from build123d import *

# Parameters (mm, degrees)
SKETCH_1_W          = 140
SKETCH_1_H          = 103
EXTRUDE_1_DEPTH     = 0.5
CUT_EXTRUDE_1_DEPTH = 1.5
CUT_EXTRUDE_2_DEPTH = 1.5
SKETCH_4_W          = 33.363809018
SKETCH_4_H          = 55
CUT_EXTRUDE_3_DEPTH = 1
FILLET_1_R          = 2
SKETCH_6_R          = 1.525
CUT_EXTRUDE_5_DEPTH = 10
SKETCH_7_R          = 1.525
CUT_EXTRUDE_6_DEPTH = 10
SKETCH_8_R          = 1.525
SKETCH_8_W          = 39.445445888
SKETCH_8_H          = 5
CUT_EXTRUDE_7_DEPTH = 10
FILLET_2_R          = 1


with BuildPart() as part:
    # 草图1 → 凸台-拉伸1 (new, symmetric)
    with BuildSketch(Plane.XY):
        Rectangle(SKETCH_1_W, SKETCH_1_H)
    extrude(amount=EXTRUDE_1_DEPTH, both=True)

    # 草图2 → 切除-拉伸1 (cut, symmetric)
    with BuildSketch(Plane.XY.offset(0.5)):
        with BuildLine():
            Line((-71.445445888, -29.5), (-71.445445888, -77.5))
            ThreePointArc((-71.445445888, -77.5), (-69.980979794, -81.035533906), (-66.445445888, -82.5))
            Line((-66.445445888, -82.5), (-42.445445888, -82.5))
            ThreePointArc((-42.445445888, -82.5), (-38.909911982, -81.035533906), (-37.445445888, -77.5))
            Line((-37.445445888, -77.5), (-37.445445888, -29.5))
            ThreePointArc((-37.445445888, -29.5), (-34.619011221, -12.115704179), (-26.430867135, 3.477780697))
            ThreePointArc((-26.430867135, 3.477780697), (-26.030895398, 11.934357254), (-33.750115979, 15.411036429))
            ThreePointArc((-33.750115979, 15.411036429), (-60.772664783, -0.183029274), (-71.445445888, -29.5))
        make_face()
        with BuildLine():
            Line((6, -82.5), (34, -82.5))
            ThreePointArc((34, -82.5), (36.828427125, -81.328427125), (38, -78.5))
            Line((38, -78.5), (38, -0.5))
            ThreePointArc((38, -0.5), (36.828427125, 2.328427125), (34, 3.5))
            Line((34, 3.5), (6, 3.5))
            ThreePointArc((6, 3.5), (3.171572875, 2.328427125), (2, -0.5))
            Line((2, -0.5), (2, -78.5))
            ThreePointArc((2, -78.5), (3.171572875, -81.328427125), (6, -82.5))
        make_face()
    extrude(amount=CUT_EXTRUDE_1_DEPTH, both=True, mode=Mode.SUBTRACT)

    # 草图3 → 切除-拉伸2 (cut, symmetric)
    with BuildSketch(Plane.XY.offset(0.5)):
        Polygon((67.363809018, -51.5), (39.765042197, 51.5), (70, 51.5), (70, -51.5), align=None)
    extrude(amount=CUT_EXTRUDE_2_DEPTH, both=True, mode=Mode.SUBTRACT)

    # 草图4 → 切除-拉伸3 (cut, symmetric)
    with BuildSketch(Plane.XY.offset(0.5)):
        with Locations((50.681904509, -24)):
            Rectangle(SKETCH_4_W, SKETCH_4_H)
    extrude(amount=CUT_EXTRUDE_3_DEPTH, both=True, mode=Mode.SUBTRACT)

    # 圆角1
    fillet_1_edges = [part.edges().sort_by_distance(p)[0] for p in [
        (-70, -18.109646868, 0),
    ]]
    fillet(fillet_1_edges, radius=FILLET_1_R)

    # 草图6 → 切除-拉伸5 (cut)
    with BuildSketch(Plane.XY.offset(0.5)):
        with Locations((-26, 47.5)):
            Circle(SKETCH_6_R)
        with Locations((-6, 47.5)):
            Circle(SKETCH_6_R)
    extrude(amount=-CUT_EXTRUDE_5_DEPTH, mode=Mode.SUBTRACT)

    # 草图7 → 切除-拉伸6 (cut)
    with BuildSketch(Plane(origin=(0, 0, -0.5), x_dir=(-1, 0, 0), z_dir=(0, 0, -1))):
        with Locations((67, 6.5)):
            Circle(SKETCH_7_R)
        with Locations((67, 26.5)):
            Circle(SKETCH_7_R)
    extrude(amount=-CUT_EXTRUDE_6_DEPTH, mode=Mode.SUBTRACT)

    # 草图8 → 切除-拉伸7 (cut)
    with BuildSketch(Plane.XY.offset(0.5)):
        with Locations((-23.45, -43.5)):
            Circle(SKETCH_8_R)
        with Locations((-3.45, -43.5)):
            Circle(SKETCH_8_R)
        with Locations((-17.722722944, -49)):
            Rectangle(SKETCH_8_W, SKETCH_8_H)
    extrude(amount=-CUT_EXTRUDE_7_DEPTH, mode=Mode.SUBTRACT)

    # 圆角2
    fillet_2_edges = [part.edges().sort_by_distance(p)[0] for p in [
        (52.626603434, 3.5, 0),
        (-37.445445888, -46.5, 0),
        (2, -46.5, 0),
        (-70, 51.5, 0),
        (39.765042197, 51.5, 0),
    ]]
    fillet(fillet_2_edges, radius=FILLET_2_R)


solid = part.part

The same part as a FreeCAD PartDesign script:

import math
import FreeCAD as App
import Part
import Sketcher

V = App.Vector
Q = App.Units.Quantity


def edges_at(feature, points):
    """Names of the edges that pass closest to the given points."""
    edges = feature.Shape.Edges
    near = lambda p: min(range(len(edges)), key=lambda i: edges[i].distToShape(Part.Vertex(*p))[0])
    return sorted({f"Edge{near(p) + 1}" for p in points})


def add_polygon(sketch, points):
    """Adds a closed chain of lines whose ends are joined by coincident constraints."""
    first, n = sketch.GeometryCount, len(points)
    for a, b in zip(points, points[1:] + points[:1]):
        sketch.addGeometry(Part.LineSegment(App.Vector(*a, 0), App.Vector(*b, 0)), False)
    for i in range(n):
        sketch.addConstraint(Sketcher.Constraint("Coincident", first + i, 2, first + (i + 1) % n, 1))

doc = App.newDocument("Part")
body = doc.addObject("PartDesign::Body", "Body")

# Sketch on XY plane
sketch1 = doc.addObject("Sketcher::SketchObject", "Sketch")
body.addObject(sketch1)
sketch1.AttachmentSupport = (doc.XY_Plane, [""])
sketch1.MapMode = "FlatFace"
add_polygon(sketch1, [(-70, 51.5), (-70, -51.5), (70, -51.5), (70, 51.5)])  # lines 0-3
sketch1.addConstraint([
    Sketcher.Constraint("Vertical", 0),
    Sketcher.Constraint("Horizontal", 1),
    Sketcher.Constraint("Vertical", 2),
    Sketcher.Constraint("Horizontal", 3),
    Sketcher.Constraint("Symmetric", 0, 2, 2, 2, -1, 1),
    Sketcher.Constraint("DistanceX", 1, 1, 1, 2, Q("140 mm")),
    Sketcher.Constraint("DistanceY", 0, 2, 0, 1, Q("103 mm")),
])
pad1 = doc.addObject("PartDesign::Pad", "Pad")
body.addObject(pad1)
pad1.Profile = sketch1
pad1.Length = 1
pad1.Midplane = True

# Sketch on XY plane
sketch2 = doc.addObject("Sketcher::SketchObject", "Sketch001")
body.addObject(sketch2)
sketch2.AttachmentSupport = (doc.XY_Plane, [""])
sketch2.MapMode = "FlatFace"
sketch2.AttachmentOffset = App.Placement(V(0, 0, 0.5), App.Rotation())
sketch2.addGeometry([
    Part.LineSegment(V(-71.445446, -29.5, 0), V(-71.445446, -77.5, 0)),  # 0
    Part.ArcOfCircle(Part.Circle(V(-66.445446, -77.5, 0), V(0, 0, 1), 5), math.radians(180), math.radians(270)),  # 1
    Part.LineSegment(V(-66.445446, -82.5, 0), V(-42.445446, -82.5, 0)),  # 2
    Part.ArcOfCircle(Part.Circle(V(-42.445446, -77.5, 0), V(0, 0, 1), 5), math.radians(-90), math.radians(0)),  # 3
    Part.LineSegment(V(-37.445446, -77.5, 0), V(-37.445446, -29.5, 0)),  # 4
    Part.ArcOfCircle(Part.Circle(V(17.429779, -29.5, 0), V(0, 0, 1), 54.875225), math.radians(143.061361), math.radians(180)),  # 5
    Part.ArcOfCircle(Part.Circle(V(-32.445446, 8, 0), V(0, 0, 1), 7.525), math.radians(-36.938639), math.radians(99.984286)),  # 6
    Part.ArcOfCircle(Part.Circle(V(-25.843788, -29.5, 0), V(0, 0, 1), 45.601658), math.radians(99.984286), math.radians(180)),  # 7
    Part.LineSegment(V(6, -82.5, 0), V(34, -82.5, 0)),  # 8
    Part.ArcOfCircle(Part.Circle(V(34, -78.5, 0), V(0, 0, 1), 4), math.radians(-90), math.radians(0)),  # 9
    Part.LineSegment(V(38, -78.5, 0), V(38, -0.5, 0)),  # 10
    Part.ArcOfCircle(Part.Circle(V(34, -0.5, 0), V(0, 0, 1), 4), math.radians(0), math.radians(90)),  # 11
    Part.LineSegment(V(34, 3.5, 0), V(6, 3.5, 0)),  # 12
    Part.ArcOfCircle(Part.Circle(V(6, -0.5, 0), V(0, 0, 1), 4), math.radians(90), math.radians(180)),  # 13
    Part.LineSegment(V(2, -0.5, 0), V(2, -78.5, 0)),  # 14
    Part.ArcOfCircle(Part.Circle(V(6, -78.5, 0), V(0, 0, 1), 4), math.radians(180), math.radians(270)),  # 15
], False)
sketch2.addConstraint([
    Sketcher.Constraint("Tangent", 0, 2, 1, 1),
    Sketcher.Constraint("Tangent", 1, 2, 2, 1),
    Sketcher.Constraint("Tangent", 2, 2, 3, 1),
    Sketcher.Constraint("Tangent", 3, 2, 4, 1),
    Sketcher.Constraint("Tangent", 4, 2, 5, 2),
    Sketcher.Constraint("Tangent", 5, 1, 6, 1),
    Sketcher.Constraint("Tangent", 6, 2, 7, 1),
    Sketcher.Constraint("Tangent", 7, 2, 0, 1),
    Sketcher.Constraint("Tangent", 8, 2, 9, 1),
    Sketcher.Constraint("Tangent", 9, 2, 10, 1),
    Sketcher.Constraint("Tangent", 10, 2, 11, 1),
    Sketcher.Constraint("Tangent", 11, 2, 12, 1),
    Sketcher.Constraint("Tangent", 12, 2, 13, 1),
    Sketcher.Constraint("Tangent", 13, 2, 14, 1),
    Sketcher.Constraint("Tangent", 14, 2, 15, 1),
    Sketcher.Constraint("Tangent", 15, 2, 8, 1),
    Sketcher.Constraint("Vertical", 0),
    Sketcher.Constraint("Horizontal", 2),
    Sketcher.Constraint("Vertical", 4),
    Sketcher.Constraint("Horizontal", 8),
    Sketcher.Constraint("Vertical", 10),
    Sketcher.Constraint("Horizontal", 12),
    Sketcher.Constraint("Vertical", 14),
    Sketcher.Constraint("Equal", 1, 3),
    Sketcher.Constraint("Equal", 9, 11),
    Sketcher.Constraint("Equal", 11, 13),
    Sketcher.Constraint("Equal", 13, 15),
    Sketcher.Constraint("Horizontal", 5, 3, 7, 3),
    Sketcher.Constraint("Horizontal", 2, 2, 8, 2),
    Sketcher.Constraint("Radius", 1, Q("5 mm")),
    Sketcher.Constraint("Radius", 9, Q("4 mm")),
    Sketcher.Constraint("DistanceX", 2, 1, 2, 2, Q("24 mm")),
    Sketcher.Constraint("DistanceX", 8, 1, 8, 2, Q("28 mm")),
    Sketcher.Constraint("DistanceY", 0, 2, 0, 1, Q("48 mm")),
    Sketcher.Constraint("DistanceY", 10, 1, 10, 2, Q("78 mm")),
    Sketcher.Constraint("DistanceY", -1, 1, 6, 3, Q("8 mm")),
    Sketcher.Constraint("DistanceX", -1, 1, 9, 3, Q("34 mm")),
    Sketcher.Constraint("Radius", 6, Q("7.525 mm")),
    Sketcher.Constraint("DistanceX", 3, 3, 6, 3, Q("10 mm")),
    Sketcher.Constraint("DistanceY", 1, 3, -1, 1, Q("77.5 mm")),
    Sketcher.Constraint("DistanceX", -1, 1, 5, 3, Q("17.429779 mm")),
])
pocket1 = doc.addObject("PartDesign::Pocket", "Pocket")
body.addObject(pocket1)
pocket1.Profile = sketch2
pocket1.Length = 3
pocket1.Midplane = True

# Sketch on XY plane
sketch3 = doc.addObject("Sketcher::SketchObject", "Sketch002")
body.addObject(sketch3)
sketch3.AttachmentSupport = (doc.XY_Plane, [""])
sketch3.MapMode = "FlatFace"
sketch3.AttachmentOffset = App.Placement(V(0, 0, 0.5), App.Rotation())
add_polygon(sketch3, [(39.765042, 51.5), (67.363809, -51.5), (70, -51.5), (70, 51.5)])  # lines 0-3
sketch3.addConstraint([
    Sketcher.Constraint("Horizontal", 1),
    Sketcher.Constraint("Vertical", 2),
    Sketcher.Constraint("Horizontal", 3),
    Sketcher.Constraint("DistanceY", 2, 1, 2, 2, Q("103 mm")),
    Sketcher.Constraint("Angle", 0, Q("-75 deg")),
    Sketcher.Constraint("DistanceX", -1, 1, 1, 2, Q("70 mm")),
    Sketcher.Constraint("DistanceY", 0, 2, -1, 1, Q("51.5 mm")),
    Sketcher.Constraint("DistanceX", 1, 1, 1, 2, Q("2.636191 mm")),
])
pocket2 = doc.addObject("PartDesign::Pocket", "Pocket001")
body.addObject(pocket2)
pocket2.Profile = sketch3
pocket2.Length = 3
pocket2.Midplane = True

# Sketch on XY plane
sketch4 = doc.addObject("Sketcher::SketchObject", "Sketch003")
body.addObject(sketch4)
sketch4.AttachmentSupport = (doc.XY_Plane, [""])
sketch4.MapMode = "FlatFace"
sketch4.AttachmentOffset = App.Placement(V(0, 0, 0.5), App.Rotation())
add_polygon(sketch4, [(34, 3.5), (34, -51.5), (67.363809, -51.5), (67.363809, 3.5)])  # lines 0-3
sketch4.addConstraint([
    Sketcher.Constraint("Vertical", 0),
    Sketcher.Constraint("Horizontal", 1),
    Sketcher.Constraint("Vertical", 2),
    Sketcher.Constraint("Horizontal", 3),
    Sketcher.Constraint("DistanceY", 0, 2, 0, 1, Q("55 mm")),
    Sketcher.Constraint("DistanceX", -1, 1, 0, 2, Q("34 mm")),
    Sketcher.Constraint("DistanceY", 0, 2, -1, 1, Q("51.5 mm")),
    Sketcher.Constraint("DistanceX", 1, 1, 1, 2, Q("33.363809 mm")),
])
pocket3 = doc.addObject("PartDesign::Pocket", "Pocket002")
body.addObject(pocket3)
pocket3.Profile = sketch4
pocket3.Length = 2
pocket3.Midplane = True
doc.recompute()

fillet = doc.addObject("PartDesign::Fillet", "Fillet")
body.addObject(fillet)
fillet.Base = (pocket3, edges_at(pocket3, [(-70, -18.11, 0)]))
fillet.Radius = 2

# Sketch on XY plane
sketch5 = doc.addObject("Sketcher::SketchObject", "Sketch004")
body.addObject(sketch5)
sketch5.AttachmentSupport = (doc.XY_Plane, [""])
sketch5.MapMode = "FlatFace"
sketch5.AttachmentOffset = App.Placement(V(0, 0, 0.5), App.Rotation())
sketch5.addGeometry([
    Part.Circle(V(-26, 47.5, 0), V(0, 0, 1), 1.525),
    Part.Circle(V(-6, 47.5, 0), V(0, 0, 1), 1.525),
], False)
sketch5.addConstraint([
    Sketcher.Constraint("Equal", 0, 1),
    Sketcher.Constraint("Horizontal", 0, 3, 1, 3),
    Sketcher.Constraint("Diameter", 0, Q("3.05 mm")),
    Sketcher.Constraint("DistanceX", 0, 3, -1, 1, Q("26 mm")),
    Sketcher.Constraint("DistanceX", 1, 3, -1, 1, Q("6 mm")),
    Sketcher.Constraint("DistanceY", -1, 1, 0, 3, Q("47.5 mm")),
])
pocket4 = doc.addObject("PartDesign::Pocket", "Pocket003")
body.addObject(pocket4)
pocket4.Profile = sketch5
pocket4.Length = 10

# Sketch on XY plane
sketch6 = doc.addObject("Sketcher::SketchObject", "Sketch005")
body.addObject(sketch6)
sketch6.AttachmentSupport = (doc.XY_Plane, [""])
sketch6.MapMode = "FlatFace"
sketch6.AttachmentOffset = App.Placement(V(0, 0, -0.5), App.Rotation())
sketch6.addGeometry([
    Part.Circle(V(-67, 6.5, 0), V(0, 0, 1), 1.525),
    Part.Circle(V(-67, 26.5, 0), V(0, 0, 1), 1.525),
], False)
sketch6.addConstraint([
    Sketcher.Constraint("Equal", 0, 1),
    Sketcher.Constraint("Vertical", 0, 3, 1, 3),
    Sketcher.Constraint("Diameter", 0, Q("3.05 mm")),
    Sketcher.Constraint("DistanceX", 0, 3, -1, 1, Q("67 mm")),
    Sketcher.Constraint("DistanceY", 0, 3, 1, 3, Q("20 mm")),
    Sketcher.Constraint("DistanceY", -1, 1, 0, 3, Q("6.5 mm")),
])
pocket5 = doc.addObject("PartDesign::Pocket", "Pocket004")
body.addObject(pocket5)
pocket5.Profile = sketch6
pocket5.Length = 10
pocket5.Reversed = True

# Sketch on XY plane
sketch7 = doc.addObject("Sketcher::SketchObject", "Sketch006")
body.addObject(sketch7)
sketch7.AttachmentSupport = (doc.XY_Plane, [""])
sketch7.MapMode = "FlatFace"
sketch7.AttachmentOffset = App.Placement(V(0, 0, 0.5), App.Rotation())
sketch7.addGeometry(Part.Circle(V(-23.45, -43.5, 0), V(0, 0, 1), 1.525), False)  # 0
sketch7.addGeometry(Part.Circle(V(-3.45, -43.5, 0), V(0, 0, 1), 1.525), False)  # 1
add_polygon(sketch7, [(-37.445446, -46.5), (-37.445446, -51.5), (2, -51.5), (2, -46.5)])  # lines 2-5
sketch7.addConstraint([
    Sketcher.Constraint("Vertical", 2),
    Sketcher.Constraint("Horizontal", 3),
    Sketcher.Constraint("Vertical", 4),
    Sketcher.Constraint("Horizontal", 5),
    Sketcher.Constraint("Equal", 0, 1),
    Sketcher.Constraint("Horizontal", 0, 3, 1, 3),
    Sketcher.Constraint("Diameter", 0, Q("3.05 mm")),
    Sketcher.Constraint("DistanceY", 2, 2, 2, 1, Q("5 mm")),
    Sketcher.Constraint("DistanceX", -1, 1, 3, 2, Q("2 mm")),
    Sketcher.Constraint("DistanceX", 0, 3, 1, 3, Q("20 mm")),
    Sketcher.Constraint("DistanceY", 2, 2, 0, 3, Q("8 mm")),
    Sketcher.Constraint("DistanceY", 0, 3, -1, 1, Q("43.5 mm")),
    Sketcher.Constraint("DistanceX", 0, 3, -1, 1, Q("23.45 mm")),
    Sketcher.Constraint("DistanceX", 3, 1, 3, 2, Q("39.445446 mm")),
])
pocket6 = doc.addObject("PartDesign::Pocket", "Pocket005")
body.addObject(pocket6)
pocket6.Profile = sketch7
pocket6.Length = 10
doc.recompute()

fillet2 = doc.addObject("PartDesign::Fillet", "Fillet001")
body.addObject(fillet2)
fillet2.Base = (pocket6, edges_at(pocket6, [
    (52.627, 3.5, 0),
    (-37.445, -46.5, 0),
    (2, -46.5, 0),
    (-70, 51.5, 0),
    (39.765, 51.5, 0),
]))
fillet2.Radius = 1

doc.recompute()
